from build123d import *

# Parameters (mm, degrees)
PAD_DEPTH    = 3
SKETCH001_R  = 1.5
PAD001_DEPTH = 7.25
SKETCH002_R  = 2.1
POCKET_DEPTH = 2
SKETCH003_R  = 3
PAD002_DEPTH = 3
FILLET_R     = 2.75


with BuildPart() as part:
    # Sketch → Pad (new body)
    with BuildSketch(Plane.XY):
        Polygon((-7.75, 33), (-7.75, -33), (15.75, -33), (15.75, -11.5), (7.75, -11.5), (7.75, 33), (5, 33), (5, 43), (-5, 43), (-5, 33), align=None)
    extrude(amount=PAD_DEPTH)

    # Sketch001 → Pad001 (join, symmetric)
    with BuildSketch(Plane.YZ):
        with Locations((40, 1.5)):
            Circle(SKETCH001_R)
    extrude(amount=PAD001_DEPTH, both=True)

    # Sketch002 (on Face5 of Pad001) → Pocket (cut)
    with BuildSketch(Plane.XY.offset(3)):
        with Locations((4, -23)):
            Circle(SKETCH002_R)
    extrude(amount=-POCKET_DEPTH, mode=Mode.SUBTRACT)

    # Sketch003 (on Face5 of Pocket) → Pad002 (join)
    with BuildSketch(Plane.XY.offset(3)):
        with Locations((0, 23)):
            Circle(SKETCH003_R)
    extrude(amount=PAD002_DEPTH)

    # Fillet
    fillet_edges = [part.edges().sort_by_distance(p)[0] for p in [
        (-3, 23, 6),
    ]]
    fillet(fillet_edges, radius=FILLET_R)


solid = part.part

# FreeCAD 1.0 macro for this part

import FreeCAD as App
import Part
import Sketcher
from FreeCAD import Vector


def edges_at(feature, points):
    """Names of the edges that pass closest to the given points."""
    edges = feature.Shape.Edges
    near = lambda p: min(range(len(edges)), key=lambda i: edges[i].distToShape(Part.Vertex(*p))[0])
    return sorted({f"Edge{near(p) + 1}" for p in points})


def add_polygon(sketch, points):
    """Adds a closed chain of lines whose ends are joined by coincident constraints."""
    first, n = sketch.GeometryCount, len(points)
    for a, b in zip(points, points[1:] + points[:1]):
        sketch.addGeometry(Part.LineSegment(App.Vector(*a, 0), App.Vector(*b, 0)), False)
    for i in range(n):
        sketch.addConstraint(Sketcher.Constraint("Coincident", first + i, 2, first + (i + 1) % n, 1))

doc = App.newDocument("Part")
body = doc.addObject("PartDesign::Body", "Body")

# Sketch on XY plane
sketch1 = body.newObject("Sketcher::SketchObject", "Sketch")
sketch1.AttachmentSupport = (doc.getObject("XY_Plane"), [""])
sketch1.MapMode = "FlatFace"
add_polygon(sketch1, [(-7.8, 33), (-7.8, -33), (15.8, -33), (15.8, -11.5), (7.8, -11.5), (7.8, 33), (5, 33), (5, 43), (-5, 43), (-5, 33)])  # lines 0-9
sketch1.addConstraint([
    Sketcher.Constraint("Vertical", 0),
    Sketcher.Constraint("Horizontal", 1),
    Sketcher.Constraint("Vertical", 2),
    Sketcher.Constraint("Horizontal", 3),
    Sketcher.Constraint("Vertical", 4),
    Sketcher.Constraint("Horizontal", 5),
    Sketcher.Constraint("Vertical", 6),
    Sketcher.Constraint("Horizontal", 7),
    Sketcher.Constraint("Vertical", 8),
    Sketcher.Constraint("Horizontal", 9),
    Sketcher.Constraint("Symmetric", 0, 2, 4, 2, -1, 1),
    Sketcher.Constraint("Symmetric", 5, 2, 8, 2, -2),
    Sketcher.Constraint("Equal", 7, 6),
    Sketcher.Constraint("DistanceX", 3, 2, 3, 1, 8.0),
    Sketcher.Constraint("DistanceX", 7, 2, 7, 1, 10.0),
    Sketcher.Constraint("DistanceY", 0, 2, 0, 1, 66.0),
    Sketcher.Constraint("DistanceX", 1, 1, 1, 2, 23.5),
    Sketcher.Constraint("DistanceY", 2, 1, 2, 2, 21.5),
])
pad1 = body.newObject("PartDesign::Pad", "Pad")
pad1.Profile = sketch1
pad1.Length = 3

# Sketch on YZ plane
sketch2 = body.newObject("Sketcher::SketchObject", "Sketch001")
sketch2.AttachmentSupport = (doc.getObject("YZ_Plane"), [""])
sketch2.MapMode = "FlatFace"
sketch2.addGeometry(Part.Circle(Vector(40, 1.5, 0), Vector(0, 0, 1), 1.5), False)
sketch2.addConstraint([
    Sketcher.Constraint("Diameter", 0, 3.0),
    Sketcher.Constraint("DistanceX", -1, 1, 0, 3, 40.0),
    Sketcher.Constraint("DistanceY", -1, 1, 0, 3, 1.5),
])
pad2 = body.newObject("PartDesign::Pad", "Pad001")
pad2.Profile = sketch2
pad2.Length = 14.5
pad2.Midplane = True

# Sketch on XY plane
sketch3 = body.newObject("Sketcher::SketchObject", "Sketch002")
sketch3.AttachmentSupport = (doc.getObject("XY_Plane"), [""])
sketch3.MapMode = "FlatFace"
sketch3.AttachmentOffset = App.Placement(Vector(0, 0, 3), App.Rotation())
sketch3.addGeometry(Part.Circle(Vector(4, -23, 0), Vector(0, 0, 1), 2.1), False)
sketch3.addConstraint([
    Sketcher.Constraint("Diameter", 0, 4.2),
    Sketcher.Constraint("DistanceX", -1, 1, 0, 3, 4.0),
    Sketcher.Constraint("DistanceY", 0, 3, -1, 1, 23.0),
])
pocket1 = body.newObject("PartDesign::Pocket", "Pocket")
pocket1.Profile = sketch3
pocket1.Length = 2

# Sketch on XY plane
sketch4 = body.newObject("Sketcher::SketchObject", "Sketch003")
sketch4.AttachmentSupport = (doc.getObject("XY_Plane"), [""])
sketch4.MapMode = "FlatFace"
sketch4.AttachmentOffset = App.Placement(Vector(0, 0, 3), App.Rotation())
sketch4.addGeometry(Part.Circle(Vector(0, 23, 0), Vector(0, 0, 1), 3), False)
sketch4.addConstraint([
    Sketcher.Constraint("PointOnObject", 0, 3, -2),
    Sketcher.Constraint("Diameter", 0, 6.0),
    Sketcher.Constraint("DistanceY", -1, 1, 0, 3, 23.0),
])
pad3 = body.newObject("PartDesign::Pad", "Pad002")
pad3.Profile = sketch4
pad3.Length = 3
doc.recompute()

fillet = body.newObject("PartDesign::Fillet", "Fillet")
fillet.Base = (pad3, edges_at(pad3, [(-3, 23, 6)]))
fillet.Radius = 2.75

doc.recompute()
